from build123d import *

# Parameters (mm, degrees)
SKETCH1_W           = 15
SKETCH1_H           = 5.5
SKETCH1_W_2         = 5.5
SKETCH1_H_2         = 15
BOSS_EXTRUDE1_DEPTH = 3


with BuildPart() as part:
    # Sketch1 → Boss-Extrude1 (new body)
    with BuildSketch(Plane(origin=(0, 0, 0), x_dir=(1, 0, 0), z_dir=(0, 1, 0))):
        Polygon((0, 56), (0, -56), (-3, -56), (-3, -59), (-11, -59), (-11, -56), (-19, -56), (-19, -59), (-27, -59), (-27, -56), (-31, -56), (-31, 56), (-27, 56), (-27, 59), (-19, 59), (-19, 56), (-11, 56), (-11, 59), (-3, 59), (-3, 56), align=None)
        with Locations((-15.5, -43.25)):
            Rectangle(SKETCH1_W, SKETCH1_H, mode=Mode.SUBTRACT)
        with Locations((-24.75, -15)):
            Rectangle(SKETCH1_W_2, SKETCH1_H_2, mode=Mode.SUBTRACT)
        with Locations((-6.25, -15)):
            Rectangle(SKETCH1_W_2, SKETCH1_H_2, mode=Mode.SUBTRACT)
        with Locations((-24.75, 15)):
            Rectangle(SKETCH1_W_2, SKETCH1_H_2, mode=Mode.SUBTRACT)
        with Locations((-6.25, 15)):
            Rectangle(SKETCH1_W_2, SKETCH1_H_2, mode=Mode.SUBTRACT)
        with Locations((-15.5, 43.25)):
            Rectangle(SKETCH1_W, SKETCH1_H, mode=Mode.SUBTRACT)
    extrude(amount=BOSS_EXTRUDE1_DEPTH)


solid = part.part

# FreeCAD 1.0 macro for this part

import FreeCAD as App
import Part
import Sketcher
from FreeCAD import Vector

doc = App.newDocument("Part")
body = doc.addObject("PartDesign::Body", "Body")

# Sketch on XZ plane
sketch1 = body.newObject("Sketcher::SketchObject", "Sketch")
sketch1.AttachmentSupport = (doc.getObject("XZ_Plane"), [""])
sketch1.MapMode = "FlatFace"
sketch1.addGeometry([
    Part.LineSegment(Vector(0, 56, 0), Vector(0, -56, 0)),  # 0
    Part.LineSegment(Vector(0, -56, 0), Vector(-3, -56, 0)),  # 1
    Part.LineSegment(Vector(-3, -56, 0), Vector(-3, -59, 0)),  # 2
    Part.LineSegment(Vector(-3, -59, 0), Vector(-11, -59, 0)),  # 3
    Part.LineSegment(Vector(-11, -59, 0), Vector(-11, -56, 0)),  # 4
    Part.LineSegment(Vector(-11, -56, 0), Vector(-19, -56, 0)),  # 5
    Part.LineSegment(Vector(-19, -56, 0), Vector(-19, -59, 0)),  # 6
    Part.LineSegment(Vector(-19, -59, 0), Vector(-27, -59, 0)),  # 7
    Part.LineSegment(Vector(-27, -59, 0), Vector(-27, -56, 0)),  # 8
    Part.LineSegment(Vector(-27, -56, 0), Vector(-31, -56, 0)),  # 9
    Part.LineSegment(Vector(-31, -56, 0), Vector(-31, 56, 0)),  # 10
    Part.LineSegment(Vector(-31, 56, 0), Vector(-27, 56, 0)),  # 11
    Part.LineSegment(Vector(-27, 56, 0), Vector(-27, 59, 0)),  # 12
    Part.LineSegment(Vector(-27, 59, 0), Vector(-19, 59, 0)),  # 13
    Part.LineSegment(Vector(-19, 59, 0), Vector(-19, 56, 0)),  # 14
    Part.LineSegment(Vector(-19, 56, 0), Vector(-11, 56, 0)),  # 15
    Part.LineSegment(Vector(-11, 56, 0), Vector(-11, 59, 0)),  # 16
    Part.LineSegment(Vector(-11, 59, 0), Vector(-3, 59, 0)),  # 17
    Part.LineSegment(Vector(-3, 59, 0), Vector(-3, 56, 0)),  # 18
    Part.LineSegment(Vector(-3, 56, 0), Vector(0, 56, 0)),  # 19
    Part.LineSegment(Vector(-9, 22.5, 0), Vector(-9, 7.5, 0)),  # 20
    Part.LineSegment(Vector(-9, 7.5, 0), Vector(-3.5, 7.5, 0)),  # 21
    Part.LineSegment(Vector(-3.5, 7.5, 0), Vector(-3.5, 22.5, 0)),  # 22
    Part.LineSegment(Vector(-3.5, 22.5, 0), Vector(-9, 22.5, 0)),  # 23
    Part.LineSegment(Vector(-23, 46, 0), Vector(-23, 40.5, 0)),  # 24
    Part.LineSegment(Vector(-23, 40.5, 0), Vector(-8, 40.5, 0)),  # 25
    Part.LineSegment(Vector(-8, 40.5, 0), Vector(-8, 46, 0)),  # 26
    Part.LineSegment(Vector(-8, 46, 0), Vector(-23, 46, 0)),  # 27
    Part.LineSegment(Vector(-27.5, 22.5, 0), Vector(-27.5, 7.5, 0)),  # 28
    Part.LineSegment(Vector(-27.5, 7.5, 0), Vector(-22, 7.5, 0)),  # 29
    Part.LineSegment(Vector(-22, 7.5, 0), Vector(-22, 22.5, 0)),  # 30
    Part.LineSegment(Vector(-22, 22.5, 0), Vector(-27.5, 22.5, 0)),  # 31
    Part.LineSegment(Vector(-9, -7.5, 0), Vector(-9, -22.5, 0)),  # 32
    Part.LineSegment(Vector(-9, -22.5, 0), Vector(-3.5, -22.5, 0)),  # 33
    Part.LineSegment(Vector(-3.5, -22.5, 0), Vector(-3.5, -7.5, 0)),  # 34
    Part.LineSegment(Vector(-3.5, -7.5, 0), Vector(-9, -7.5, 0)),  # 35
    Part.LineSegment(Vector(-27.5, -7.5, 0), Vector(-27.5, -22.5, 0)),  # 36
    Part.LineSegment(Vector(-27.5, -22.5, 0), Vector(-22, -22.5, 0)),  # 37
    Part.LineSegment(Vector(-22, -22.5, 0), Vector(-22, -7.5, 0)),  # 38
    Part.LineSegment(Vector(-22, -7.5, 0), Vector(-27.5, -7.5, 0)),  # 39
    Part.LineSegment(Vector(-23, -40.5, 0), Vector(-23, -46, 0)),  # 40
    Part.LineSegment(Vector(-23, -46, 0), Vector(-8, -46, 0)),  # 41
    Part.LineSegment(Vector(-8, -46, 0), Vector(-8, -40.5, 0)),  # 42
    Part.LineSegment(Vector(-8, -40.5, 0), Vector(-23, -40.5, 0)),  # 43
], False)
sketch1.addConstraint([
    Sketcher.Constraint("Coincident", 0, 2, 1, 1),
    Sketcher.Constraint("Coincident", 1, 2, 2, 1),
    Sketcher.Constraint("Coincident", 2, 2, 3, 1),
    Sketcher.Constraint("Coincident", 3, 2, 4, 1),
    Sketcher.Constraint("Coincident", 4, 2, 5, 1),
    Sketcher.Constraint("Coincident", 5, 2, 6, 1),
    Sketcher.Constraint("Coincident", 6, 2, 7, 1),
    Sketcher.Constraint("Coincident", 7, 2, 8, 1),
    Sketcher.Constraint("Coincident", 8, 2, 9, 1),
    Sketcher.Constraint("Coincident", 9, 2, 10, 1),
    Sketcher.Constraint("Coincident", 10, 2, 11, 1),
    Sketcher.Constraint("Coincident", 11, 2, 12, 1),
    Sketcher.Constraint("Coincident", 12, 2, 13, 1),
    Sketcher.Constraint("Coincident", 13, 2, 14, 1),
    Sketcher.Constraint("Coincident", 14, 2, 15, 1),
    Sketcher.Constraint("Coincident", 15, 2, 16, 1),
    Sketcher.Constraint("Coincident", 16, 2, 17, 1),
    Sketcher.Constraint("Coincident", 17, 2, 18, 1),
    Sketcher.Constraint("Coincident", 18, 2, 19, 1),
    Sketcher.Constraint("Coincident", 19, 2, 0, 1),
    Sketcher.Constraint("Coincident", 20, 2, 21, 1),
    Sketcher.Constraint("Coincident", 21, 2, 22, 1),
    Sketcher.Constraint("Coincident", 22, 2, 23, 1),
    Sketcher.Constraint("Coincident", 23, 2, 20, 1),
    Sketcher.Constraint("Coincident", 24, 2, 25, 1),
    Sketcher.Constraint("Coincident", 25, 2, 26, 1),
    Sketcher.Constraint("Coincident", 26, 2, 27, 1),
    Sketcher.Constraint("Coincident", 27, 2, 24, 1),
    Sketcher.Constraint("Coincident", 28, 2, 29, 1),
    Sketcher.Constraint("Coincident", 29, 2, 30, 1),
    Sketcher.Constraint("Coincident", 30, 2, 31, 1),
    Sketcher.Constraint("Coincident", 31, 2, 28, 1),
    Sketcher.Constraint("Coincident", 32, 2, 33, 1),
    Sketcher.Constraint("Coincident", 33, 2, 34, 1),
    Sketcher.Constraint("Coincident", 34, 2, 35, 1),
    Sketcher.Constraint("Coincident", 35, 2, 32, 1),
    Sketcher.Constraint("Coincident", 36, 2, 37, 1),
    Sketcher.Constraint("Coincident", 37, 2, 38, 1),
    Sketcher.Constraint("Coincident", 38, 2, 39, 1),
    Sketcher.Constraint("Coincident", 39, 2, 36, 1),
    Sketcher.Constraint("Coincident", 40, 2, 41, 1),
    Sketcher.Constraint("Coincident", 41, 2, 42, 1),
    Sketcher.Constraint("Coincident", 42, 2, 43, 1),
    Sketcher.Constraint("Coincident", 43, 2, 40, 1),
    Sketcher.Constraint("Vertical", 0),
    Sketcher.Constraint("Horizontal", 1),
    Sketcher.Constraint("Vertical", 2),
    Sketcher.Constraint("Horizontal", 3),
    Sketcher.Constraint("Vertical", 4),
    Sketcher.Constraint("Horizontal", 5),
    Sketcher.Constraint("Vertical", 6),
    Sketcher.Constraint("Horizontal", 7),
    Sketcher.Constraint("Vertical", 8),
    Sketcher.Constraint("Horizontal", 9),
    Sketcher.Constraint("Vertical", 10),
    Sketcher.Constraint("Horizontal", 11),
    Sketcher.Constraint("Vertical", 12),
    Sketcher.Constraint("Horizontal", 13),
    Sketcher.Constraint("Vertical", 14),
    Sketcher.Constraint("Horizontal", 15),
    Sketcher.Constraint("Vertical", 16),
    Sketcher.Constraint("Horizontal", 17),
    Sketcher.Constraint("Vertical", 18),
    Sketcher.Constraint("Horizontal", 19),
    Sketcher.Constraint("Vertical", 20),
    Sketcher.Constraint("Horizontal", 21),
    Sketcher.Constraint("Vertical", 22),
    Sketcher.Constraint("Horizontal", 23),
    Sketcher.Constraint("Vertical", 24),
    Sketcher.Constraint("Horizontal", 25),
    Sketcher.Constraint("Vertical", 26),
    Sketcher.Constraint("Horizontal", 27),
    Sketcher.Constraint("Vertical", 28),
    Sketcher.Constraint("Horizontal", 29),
    Sketcher.Constraint("Vertical", 30),
    Sketcher.Constraint("Horizontal", 31),
    Sketcher.Constraint("Vertical", 32),
    Sketcher.Constraint("Horizontal", 33),
    Sketcher.Constraint("Vertical", 34),
    Sketcher.Constraint("Horizontal", 35),
    Sketcher.Constraint("Vertical", 36),
    Sketcher.Constraint("Horizontal", 37),
    Sketcher.Constraint("Vertical", 38),
    Sketcher.Constraint("Horizontal", 39),
    Sketcher.Constraint("Vertical", 40),
    Sketcher.Constraint("Horizontal", 41),
    Sketcher.Constraint("Vertical", 42),
    Sketcher.Constraint("Horizontal", 43),
    Sketcher.Constraint("Symmetric", 0, 2, 19, 2, -1, 1),
    Sketcher.Constraint("Symmetric", 8, 2, 11, 2, -1),
    Sketcher.Constraint("Symmetric", 6, 2, 13, 2, -1),
    Sketcher.Constraint("Symmetric", 4, 2, 15, 2, -1),
    Sketcher.Constraint("Symmetric", 2, 2, 17, 2, -1),
    Sketcher.Constraint("Symmetric", 23, 2, 32, 2, -1),
    Sketcher.Constraint("Symmetric", 21, 2, 34, 2, -1),
    Sketcher.Constraint("Symmetric", 31, 2, 36, 2, -1),
    Sketcher.Constraint("Symmetric", 29, 2, 38, 2, -1),
    Sketcher.Constraint("Symmetric", 27, 2, 40, 2, -1),
    Sketcher.Constraint("Symmetric", 25, 2, 42, 2, -1),
    Sketcher.Constraint("Horizontal", 1, 2, 4, 2),
    Sketcher.Constraint("Horizontal", 3, 2, 6, 2),
    Sketcher.Constraint("Horizontal", 5, 2, 8, 2),
    Sketcher.Constraint("Horizontal", 21, 2, 28, 2),
    Sketcher.Constraint("Horizontal", 23, 2, 30, 2),
    Sketcher.Constraint("Equal", 3, 5),
    Sketcher.Constraint("Equal", 5, 7),
    Sketcher.Constraint("Equal", 23, 29),
    Sketcher.Constraint("Equal", 19, 2),
    Sketcher.Constraint("Equal", 43, 20),
    Sketcher.Constraint("Equal", 39, 24),
    Sketcher.Constraint("DistanceX", 1, 2, 1, 1, 3.0),
    Sketcher.Constraint("DistanceX", 3, 2, 3, 1, 8.0),
    Sketcher.Constraint("DistanceX", 9, 2, 9, 1, 4.0),
    Sketcher.Constraint("DistanceX", 25, 1, 25, 2, 15.0),
    Sketcher.Constraint("DistanceY", 0, 2, 0, 1, 112.0),
    Sketcher.Constraint("DistanceX", 21, 1, 21, 2, 5.5),
    Sketcher.Constraint("DistanceX", 20, 2, -1, 1, 9.0),
    Sketcher.Constraint("DistanceX", 24, 2, -1, 1, 23.0),
    Sketcher.Constraint("DistanceY", -1, 1, 26, 2, 46.0),
    Sketcher.Constraint("DistanceX", 29, 2, -1, 1, 22.0),
    Sketcher.Constraint("DistanceY", 23, 2, 25, 2, 18.0),
])
pad1 = body.newObject("PartDesign::Pad", "Pad")
pad1.Profile = sketch1
pad1.Length = 3
pad1.Reversed = True

doc.recompute()
